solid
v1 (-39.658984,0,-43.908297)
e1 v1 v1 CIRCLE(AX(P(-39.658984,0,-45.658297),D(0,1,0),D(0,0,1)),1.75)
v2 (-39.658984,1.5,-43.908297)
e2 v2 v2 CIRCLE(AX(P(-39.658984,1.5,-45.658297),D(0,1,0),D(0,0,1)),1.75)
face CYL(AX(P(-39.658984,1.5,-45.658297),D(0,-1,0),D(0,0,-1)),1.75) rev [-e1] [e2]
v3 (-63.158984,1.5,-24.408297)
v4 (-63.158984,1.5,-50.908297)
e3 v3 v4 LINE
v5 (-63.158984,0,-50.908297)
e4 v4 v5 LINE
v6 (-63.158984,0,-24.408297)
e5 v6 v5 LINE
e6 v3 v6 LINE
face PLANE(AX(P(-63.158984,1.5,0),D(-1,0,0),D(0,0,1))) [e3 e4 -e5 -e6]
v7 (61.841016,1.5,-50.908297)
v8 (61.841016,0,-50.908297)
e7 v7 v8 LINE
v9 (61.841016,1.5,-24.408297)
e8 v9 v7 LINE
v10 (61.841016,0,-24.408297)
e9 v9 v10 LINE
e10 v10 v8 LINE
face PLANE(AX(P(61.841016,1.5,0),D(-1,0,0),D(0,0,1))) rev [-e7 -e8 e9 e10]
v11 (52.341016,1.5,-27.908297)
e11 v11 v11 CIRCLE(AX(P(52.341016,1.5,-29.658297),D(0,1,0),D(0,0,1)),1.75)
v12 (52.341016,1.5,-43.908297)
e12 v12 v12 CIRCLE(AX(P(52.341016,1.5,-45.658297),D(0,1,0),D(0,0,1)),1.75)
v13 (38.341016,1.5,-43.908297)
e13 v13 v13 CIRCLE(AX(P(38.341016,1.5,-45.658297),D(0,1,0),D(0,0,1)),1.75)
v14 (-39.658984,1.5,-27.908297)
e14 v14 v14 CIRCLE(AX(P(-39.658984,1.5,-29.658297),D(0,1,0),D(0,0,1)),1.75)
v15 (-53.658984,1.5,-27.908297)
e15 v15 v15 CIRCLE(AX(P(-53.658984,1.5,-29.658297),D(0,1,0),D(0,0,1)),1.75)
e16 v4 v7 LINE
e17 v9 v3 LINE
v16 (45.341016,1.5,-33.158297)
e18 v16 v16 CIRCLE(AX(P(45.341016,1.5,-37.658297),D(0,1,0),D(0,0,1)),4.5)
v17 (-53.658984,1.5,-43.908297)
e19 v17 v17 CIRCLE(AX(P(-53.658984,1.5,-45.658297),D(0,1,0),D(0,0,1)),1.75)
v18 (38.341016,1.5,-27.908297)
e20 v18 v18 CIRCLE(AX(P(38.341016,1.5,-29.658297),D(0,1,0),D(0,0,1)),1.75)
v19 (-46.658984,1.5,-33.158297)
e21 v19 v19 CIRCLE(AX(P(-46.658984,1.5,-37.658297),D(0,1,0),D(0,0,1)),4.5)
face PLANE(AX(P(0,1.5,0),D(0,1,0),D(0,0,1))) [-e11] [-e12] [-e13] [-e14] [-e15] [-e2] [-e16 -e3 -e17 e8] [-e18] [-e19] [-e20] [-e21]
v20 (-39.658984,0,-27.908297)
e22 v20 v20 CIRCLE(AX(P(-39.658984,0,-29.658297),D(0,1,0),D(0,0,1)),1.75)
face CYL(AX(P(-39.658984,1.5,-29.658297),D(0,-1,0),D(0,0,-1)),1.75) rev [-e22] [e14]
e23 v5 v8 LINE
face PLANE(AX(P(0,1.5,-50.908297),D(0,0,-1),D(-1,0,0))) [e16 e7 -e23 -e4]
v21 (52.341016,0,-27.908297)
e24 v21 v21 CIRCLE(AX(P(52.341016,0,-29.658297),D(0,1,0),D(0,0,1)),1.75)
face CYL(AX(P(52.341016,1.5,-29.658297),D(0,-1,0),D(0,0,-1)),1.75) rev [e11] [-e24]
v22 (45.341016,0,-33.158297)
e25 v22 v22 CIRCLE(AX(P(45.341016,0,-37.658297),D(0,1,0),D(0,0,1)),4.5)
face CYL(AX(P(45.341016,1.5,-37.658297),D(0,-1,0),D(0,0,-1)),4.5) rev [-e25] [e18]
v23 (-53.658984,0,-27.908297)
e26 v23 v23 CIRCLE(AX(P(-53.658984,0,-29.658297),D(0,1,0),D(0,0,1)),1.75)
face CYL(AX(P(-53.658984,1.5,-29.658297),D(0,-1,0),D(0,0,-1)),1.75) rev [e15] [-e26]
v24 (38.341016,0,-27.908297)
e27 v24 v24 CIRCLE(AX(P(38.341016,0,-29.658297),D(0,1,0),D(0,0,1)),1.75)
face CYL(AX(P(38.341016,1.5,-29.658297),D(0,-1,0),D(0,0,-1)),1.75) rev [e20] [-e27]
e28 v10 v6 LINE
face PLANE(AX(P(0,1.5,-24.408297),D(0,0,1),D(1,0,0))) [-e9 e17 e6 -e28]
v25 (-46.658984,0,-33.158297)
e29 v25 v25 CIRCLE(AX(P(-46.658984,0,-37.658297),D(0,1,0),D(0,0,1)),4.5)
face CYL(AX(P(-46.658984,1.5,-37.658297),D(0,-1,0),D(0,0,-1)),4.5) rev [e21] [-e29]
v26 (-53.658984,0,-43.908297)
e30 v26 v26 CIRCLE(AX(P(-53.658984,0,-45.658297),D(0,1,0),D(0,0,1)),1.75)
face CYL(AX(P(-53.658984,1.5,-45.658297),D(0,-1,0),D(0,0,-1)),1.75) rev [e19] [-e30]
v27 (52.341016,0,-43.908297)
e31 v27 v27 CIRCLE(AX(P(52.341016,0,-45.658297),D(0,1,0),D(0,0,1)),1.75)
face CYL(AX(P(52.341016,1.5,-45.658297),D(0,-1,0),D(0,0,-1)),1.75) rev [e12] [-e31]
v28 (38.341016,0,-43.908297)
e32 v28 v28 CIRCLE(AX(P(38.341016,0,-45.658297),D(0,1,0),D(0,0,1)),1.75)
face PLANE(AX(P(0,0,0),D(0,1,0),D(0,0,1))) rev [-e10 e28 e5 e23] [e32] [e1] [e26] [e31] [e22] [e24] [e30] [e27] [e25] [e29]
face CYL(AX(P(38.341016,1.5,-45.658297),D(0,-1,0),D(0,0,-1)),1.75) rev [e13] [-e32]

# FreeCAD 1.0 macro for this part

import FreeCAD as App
import Part
import Sketcher

V = App.Vector

doc = App.newDocument("Part")
body = doc.addObject("PartDesign::Body", "Body")

sketch1 = body.newObject("Sketcher::SketchObject", "Sketch")
sketch1.AttachmentSupport = (doc.getObject("XZ_Plane"), [""])
sketch1.MapMode = "FlatFace"
sketch1.addGeometry([
    Part.LineSegment(V(-63.2, -50.9, 0), V(-63.2, -24.4, 0)),
    Part.LineSegment(V(-63.2, -24.4, 0), V(61.8, -24.4, 0)),
    Part.LineSegment(V(61.8, -24.4, 0), V(61.8, -50.9, 0)),
    Part.LineSegment(V(61.8, -50.9, 0), V(-63.2, -50.9, 0)),
    Part.Circle(V(-53.7, -29.7, 0), V(0, 0, 1), 1.8),
    Part.Circle(V(-39.7, -29.7, 0), V(0, 0, 1), 1.8),
    Part.Circle(V(38.3, -29.7, 0), V(0, 0, 1), 1.8),
    Part.Circle(V(52.3, -29.7, 0), V(0, 0, 1), 1.8),
    Part.Circle(V(-46.7, -37.7, 0), V(0, 0, 1), 4.5),
    Part.Circle(V(-53.7, -45.7, 0), V(0, 0, 1), 1.8),
    Part.Circle(V(-39.7, -45.7, 0), V(0, 0, 1), 1.8),
    Part.Circle(V(45.3, -37.7, 0), V(0, 0, 1), 4.5),
    Part.Circle(V(38.3, -45.7, 0), V(0, 0, 1), 1.8),
    Part.Circle(V(52.3, -45.7, 0), V(0, 0, 1), 1.8),
], False)
sketch1.addConstraint([
    Sketcher.Constraint("Coincident", 0, 2, 1, 1),
    Sketcher.Constraint("Coincident", 1, 2, 2, 1),
    Sketcher.Constraint("Coincident", 2, 2, 3, 1),
    Sketcher.Constraint("Coincident", 3, 2, 0, 1),
    Sketcher.Constraint("Vertical", 0),
    Sketcher.Constraint("Horizontal", 1),
    Sketcher.Constraint("Vertical", 2),
    Sketcher.Constraint("Horizontal", 3),
    Sketcher.Constraint("Equal", 4, 5),
    Sketcher.Constraint("Equal", 5, 6),
    Sketcher.Constraint("Equal", 6, 7),
    Sketcher.Constraint("Equal", 7, 9),
    Sketcher.Constraint("Equal", 9, 10),
    Sketcher.Constraint("Equal", 8, 11),
    Sketcher.Constraint("Equal", 10, 12),
    Sketcher.Constraint("Equal", 12, 13),
    Sketcher.Constraint("Horizontal", 4, 3, 5, 3),
    Sketcher.Constraint("Horizontal", 5, 3, 6, 3),
    Sketcher.Constraint("Horizontal", 6, 3, 7, 3),
    Sketcher.Constraint("Horizontal", 9, 3, 10, 3),
    Sketcher.Constraint("Horizontal", 8, 3, 11, 3),
    Sketcher.Constraint("Horizontal", 10, 3, 12, 3),
    Sketcher.Constraint("Horizontal", 12, 3, 13, 3),
    Sketcher.Constraint("Vertical", 4, 3, 9, 3),
    Sketcher.Constraint("Vertical", 5, 3, 10, 3),
    Sketcher.Constraint("Vertical", 6, 3, 12, 3),
    Sketcher.Constraint("Vertical", 7, 3, 13, 3),
    Sketcher.Constraint("Diameter", 8, 9.0),
    Sketcher.Constraint("Diameter", 4, 3.5),
    Sketcher.Constraint("DistanceX", 1, 1, 1, 2, 125.0),
    Sketcher.Constraint("DistanceY", 0, 1, 0, 2, 26.5),
    Sketcher.Constraint("DistanceX", 4, 3, 5, 3, 14.0),
    Sketcher.Constraint("DistanceX", 5, 3, 6, 3, 78.0),
    Sketcher.Constraint("DistanceX", 6, 3, 7, 3, 14.0),
    Sketcher.Constraint("DistanceX", 4, 3, 8, 3, 7.0),
    Sketcher.Constraint("DistanceY", 8, 3, 4, 3, 8.0),
    Sketcher.Constraint("DistanceY", 9, 3, 8, 3, 8.0),
    Sketcher.Constraint("DistanceX", 6, 3, 11, 3, 7.0),
    Sketcher.Constraint("DistanceX", 0, 2, 4, 3, 9.5),
    Sketcher.Constraint("DistanceY", 4, 3, 0, 2, 5.25),
    Sketcher.Constraint("DistanceX", 4, 3, -1, 1, 53.658984),
    Sketcher.Constraint("DistanceY", 4, 3, -1, 1, 29.658297),
])
pad1 = body.newObject("PartDesign::Pad", "Pad")
pad1.Profile = sketch1
pad1.Length = 1.5
pad1.Reversed = True

doc.recompute()
